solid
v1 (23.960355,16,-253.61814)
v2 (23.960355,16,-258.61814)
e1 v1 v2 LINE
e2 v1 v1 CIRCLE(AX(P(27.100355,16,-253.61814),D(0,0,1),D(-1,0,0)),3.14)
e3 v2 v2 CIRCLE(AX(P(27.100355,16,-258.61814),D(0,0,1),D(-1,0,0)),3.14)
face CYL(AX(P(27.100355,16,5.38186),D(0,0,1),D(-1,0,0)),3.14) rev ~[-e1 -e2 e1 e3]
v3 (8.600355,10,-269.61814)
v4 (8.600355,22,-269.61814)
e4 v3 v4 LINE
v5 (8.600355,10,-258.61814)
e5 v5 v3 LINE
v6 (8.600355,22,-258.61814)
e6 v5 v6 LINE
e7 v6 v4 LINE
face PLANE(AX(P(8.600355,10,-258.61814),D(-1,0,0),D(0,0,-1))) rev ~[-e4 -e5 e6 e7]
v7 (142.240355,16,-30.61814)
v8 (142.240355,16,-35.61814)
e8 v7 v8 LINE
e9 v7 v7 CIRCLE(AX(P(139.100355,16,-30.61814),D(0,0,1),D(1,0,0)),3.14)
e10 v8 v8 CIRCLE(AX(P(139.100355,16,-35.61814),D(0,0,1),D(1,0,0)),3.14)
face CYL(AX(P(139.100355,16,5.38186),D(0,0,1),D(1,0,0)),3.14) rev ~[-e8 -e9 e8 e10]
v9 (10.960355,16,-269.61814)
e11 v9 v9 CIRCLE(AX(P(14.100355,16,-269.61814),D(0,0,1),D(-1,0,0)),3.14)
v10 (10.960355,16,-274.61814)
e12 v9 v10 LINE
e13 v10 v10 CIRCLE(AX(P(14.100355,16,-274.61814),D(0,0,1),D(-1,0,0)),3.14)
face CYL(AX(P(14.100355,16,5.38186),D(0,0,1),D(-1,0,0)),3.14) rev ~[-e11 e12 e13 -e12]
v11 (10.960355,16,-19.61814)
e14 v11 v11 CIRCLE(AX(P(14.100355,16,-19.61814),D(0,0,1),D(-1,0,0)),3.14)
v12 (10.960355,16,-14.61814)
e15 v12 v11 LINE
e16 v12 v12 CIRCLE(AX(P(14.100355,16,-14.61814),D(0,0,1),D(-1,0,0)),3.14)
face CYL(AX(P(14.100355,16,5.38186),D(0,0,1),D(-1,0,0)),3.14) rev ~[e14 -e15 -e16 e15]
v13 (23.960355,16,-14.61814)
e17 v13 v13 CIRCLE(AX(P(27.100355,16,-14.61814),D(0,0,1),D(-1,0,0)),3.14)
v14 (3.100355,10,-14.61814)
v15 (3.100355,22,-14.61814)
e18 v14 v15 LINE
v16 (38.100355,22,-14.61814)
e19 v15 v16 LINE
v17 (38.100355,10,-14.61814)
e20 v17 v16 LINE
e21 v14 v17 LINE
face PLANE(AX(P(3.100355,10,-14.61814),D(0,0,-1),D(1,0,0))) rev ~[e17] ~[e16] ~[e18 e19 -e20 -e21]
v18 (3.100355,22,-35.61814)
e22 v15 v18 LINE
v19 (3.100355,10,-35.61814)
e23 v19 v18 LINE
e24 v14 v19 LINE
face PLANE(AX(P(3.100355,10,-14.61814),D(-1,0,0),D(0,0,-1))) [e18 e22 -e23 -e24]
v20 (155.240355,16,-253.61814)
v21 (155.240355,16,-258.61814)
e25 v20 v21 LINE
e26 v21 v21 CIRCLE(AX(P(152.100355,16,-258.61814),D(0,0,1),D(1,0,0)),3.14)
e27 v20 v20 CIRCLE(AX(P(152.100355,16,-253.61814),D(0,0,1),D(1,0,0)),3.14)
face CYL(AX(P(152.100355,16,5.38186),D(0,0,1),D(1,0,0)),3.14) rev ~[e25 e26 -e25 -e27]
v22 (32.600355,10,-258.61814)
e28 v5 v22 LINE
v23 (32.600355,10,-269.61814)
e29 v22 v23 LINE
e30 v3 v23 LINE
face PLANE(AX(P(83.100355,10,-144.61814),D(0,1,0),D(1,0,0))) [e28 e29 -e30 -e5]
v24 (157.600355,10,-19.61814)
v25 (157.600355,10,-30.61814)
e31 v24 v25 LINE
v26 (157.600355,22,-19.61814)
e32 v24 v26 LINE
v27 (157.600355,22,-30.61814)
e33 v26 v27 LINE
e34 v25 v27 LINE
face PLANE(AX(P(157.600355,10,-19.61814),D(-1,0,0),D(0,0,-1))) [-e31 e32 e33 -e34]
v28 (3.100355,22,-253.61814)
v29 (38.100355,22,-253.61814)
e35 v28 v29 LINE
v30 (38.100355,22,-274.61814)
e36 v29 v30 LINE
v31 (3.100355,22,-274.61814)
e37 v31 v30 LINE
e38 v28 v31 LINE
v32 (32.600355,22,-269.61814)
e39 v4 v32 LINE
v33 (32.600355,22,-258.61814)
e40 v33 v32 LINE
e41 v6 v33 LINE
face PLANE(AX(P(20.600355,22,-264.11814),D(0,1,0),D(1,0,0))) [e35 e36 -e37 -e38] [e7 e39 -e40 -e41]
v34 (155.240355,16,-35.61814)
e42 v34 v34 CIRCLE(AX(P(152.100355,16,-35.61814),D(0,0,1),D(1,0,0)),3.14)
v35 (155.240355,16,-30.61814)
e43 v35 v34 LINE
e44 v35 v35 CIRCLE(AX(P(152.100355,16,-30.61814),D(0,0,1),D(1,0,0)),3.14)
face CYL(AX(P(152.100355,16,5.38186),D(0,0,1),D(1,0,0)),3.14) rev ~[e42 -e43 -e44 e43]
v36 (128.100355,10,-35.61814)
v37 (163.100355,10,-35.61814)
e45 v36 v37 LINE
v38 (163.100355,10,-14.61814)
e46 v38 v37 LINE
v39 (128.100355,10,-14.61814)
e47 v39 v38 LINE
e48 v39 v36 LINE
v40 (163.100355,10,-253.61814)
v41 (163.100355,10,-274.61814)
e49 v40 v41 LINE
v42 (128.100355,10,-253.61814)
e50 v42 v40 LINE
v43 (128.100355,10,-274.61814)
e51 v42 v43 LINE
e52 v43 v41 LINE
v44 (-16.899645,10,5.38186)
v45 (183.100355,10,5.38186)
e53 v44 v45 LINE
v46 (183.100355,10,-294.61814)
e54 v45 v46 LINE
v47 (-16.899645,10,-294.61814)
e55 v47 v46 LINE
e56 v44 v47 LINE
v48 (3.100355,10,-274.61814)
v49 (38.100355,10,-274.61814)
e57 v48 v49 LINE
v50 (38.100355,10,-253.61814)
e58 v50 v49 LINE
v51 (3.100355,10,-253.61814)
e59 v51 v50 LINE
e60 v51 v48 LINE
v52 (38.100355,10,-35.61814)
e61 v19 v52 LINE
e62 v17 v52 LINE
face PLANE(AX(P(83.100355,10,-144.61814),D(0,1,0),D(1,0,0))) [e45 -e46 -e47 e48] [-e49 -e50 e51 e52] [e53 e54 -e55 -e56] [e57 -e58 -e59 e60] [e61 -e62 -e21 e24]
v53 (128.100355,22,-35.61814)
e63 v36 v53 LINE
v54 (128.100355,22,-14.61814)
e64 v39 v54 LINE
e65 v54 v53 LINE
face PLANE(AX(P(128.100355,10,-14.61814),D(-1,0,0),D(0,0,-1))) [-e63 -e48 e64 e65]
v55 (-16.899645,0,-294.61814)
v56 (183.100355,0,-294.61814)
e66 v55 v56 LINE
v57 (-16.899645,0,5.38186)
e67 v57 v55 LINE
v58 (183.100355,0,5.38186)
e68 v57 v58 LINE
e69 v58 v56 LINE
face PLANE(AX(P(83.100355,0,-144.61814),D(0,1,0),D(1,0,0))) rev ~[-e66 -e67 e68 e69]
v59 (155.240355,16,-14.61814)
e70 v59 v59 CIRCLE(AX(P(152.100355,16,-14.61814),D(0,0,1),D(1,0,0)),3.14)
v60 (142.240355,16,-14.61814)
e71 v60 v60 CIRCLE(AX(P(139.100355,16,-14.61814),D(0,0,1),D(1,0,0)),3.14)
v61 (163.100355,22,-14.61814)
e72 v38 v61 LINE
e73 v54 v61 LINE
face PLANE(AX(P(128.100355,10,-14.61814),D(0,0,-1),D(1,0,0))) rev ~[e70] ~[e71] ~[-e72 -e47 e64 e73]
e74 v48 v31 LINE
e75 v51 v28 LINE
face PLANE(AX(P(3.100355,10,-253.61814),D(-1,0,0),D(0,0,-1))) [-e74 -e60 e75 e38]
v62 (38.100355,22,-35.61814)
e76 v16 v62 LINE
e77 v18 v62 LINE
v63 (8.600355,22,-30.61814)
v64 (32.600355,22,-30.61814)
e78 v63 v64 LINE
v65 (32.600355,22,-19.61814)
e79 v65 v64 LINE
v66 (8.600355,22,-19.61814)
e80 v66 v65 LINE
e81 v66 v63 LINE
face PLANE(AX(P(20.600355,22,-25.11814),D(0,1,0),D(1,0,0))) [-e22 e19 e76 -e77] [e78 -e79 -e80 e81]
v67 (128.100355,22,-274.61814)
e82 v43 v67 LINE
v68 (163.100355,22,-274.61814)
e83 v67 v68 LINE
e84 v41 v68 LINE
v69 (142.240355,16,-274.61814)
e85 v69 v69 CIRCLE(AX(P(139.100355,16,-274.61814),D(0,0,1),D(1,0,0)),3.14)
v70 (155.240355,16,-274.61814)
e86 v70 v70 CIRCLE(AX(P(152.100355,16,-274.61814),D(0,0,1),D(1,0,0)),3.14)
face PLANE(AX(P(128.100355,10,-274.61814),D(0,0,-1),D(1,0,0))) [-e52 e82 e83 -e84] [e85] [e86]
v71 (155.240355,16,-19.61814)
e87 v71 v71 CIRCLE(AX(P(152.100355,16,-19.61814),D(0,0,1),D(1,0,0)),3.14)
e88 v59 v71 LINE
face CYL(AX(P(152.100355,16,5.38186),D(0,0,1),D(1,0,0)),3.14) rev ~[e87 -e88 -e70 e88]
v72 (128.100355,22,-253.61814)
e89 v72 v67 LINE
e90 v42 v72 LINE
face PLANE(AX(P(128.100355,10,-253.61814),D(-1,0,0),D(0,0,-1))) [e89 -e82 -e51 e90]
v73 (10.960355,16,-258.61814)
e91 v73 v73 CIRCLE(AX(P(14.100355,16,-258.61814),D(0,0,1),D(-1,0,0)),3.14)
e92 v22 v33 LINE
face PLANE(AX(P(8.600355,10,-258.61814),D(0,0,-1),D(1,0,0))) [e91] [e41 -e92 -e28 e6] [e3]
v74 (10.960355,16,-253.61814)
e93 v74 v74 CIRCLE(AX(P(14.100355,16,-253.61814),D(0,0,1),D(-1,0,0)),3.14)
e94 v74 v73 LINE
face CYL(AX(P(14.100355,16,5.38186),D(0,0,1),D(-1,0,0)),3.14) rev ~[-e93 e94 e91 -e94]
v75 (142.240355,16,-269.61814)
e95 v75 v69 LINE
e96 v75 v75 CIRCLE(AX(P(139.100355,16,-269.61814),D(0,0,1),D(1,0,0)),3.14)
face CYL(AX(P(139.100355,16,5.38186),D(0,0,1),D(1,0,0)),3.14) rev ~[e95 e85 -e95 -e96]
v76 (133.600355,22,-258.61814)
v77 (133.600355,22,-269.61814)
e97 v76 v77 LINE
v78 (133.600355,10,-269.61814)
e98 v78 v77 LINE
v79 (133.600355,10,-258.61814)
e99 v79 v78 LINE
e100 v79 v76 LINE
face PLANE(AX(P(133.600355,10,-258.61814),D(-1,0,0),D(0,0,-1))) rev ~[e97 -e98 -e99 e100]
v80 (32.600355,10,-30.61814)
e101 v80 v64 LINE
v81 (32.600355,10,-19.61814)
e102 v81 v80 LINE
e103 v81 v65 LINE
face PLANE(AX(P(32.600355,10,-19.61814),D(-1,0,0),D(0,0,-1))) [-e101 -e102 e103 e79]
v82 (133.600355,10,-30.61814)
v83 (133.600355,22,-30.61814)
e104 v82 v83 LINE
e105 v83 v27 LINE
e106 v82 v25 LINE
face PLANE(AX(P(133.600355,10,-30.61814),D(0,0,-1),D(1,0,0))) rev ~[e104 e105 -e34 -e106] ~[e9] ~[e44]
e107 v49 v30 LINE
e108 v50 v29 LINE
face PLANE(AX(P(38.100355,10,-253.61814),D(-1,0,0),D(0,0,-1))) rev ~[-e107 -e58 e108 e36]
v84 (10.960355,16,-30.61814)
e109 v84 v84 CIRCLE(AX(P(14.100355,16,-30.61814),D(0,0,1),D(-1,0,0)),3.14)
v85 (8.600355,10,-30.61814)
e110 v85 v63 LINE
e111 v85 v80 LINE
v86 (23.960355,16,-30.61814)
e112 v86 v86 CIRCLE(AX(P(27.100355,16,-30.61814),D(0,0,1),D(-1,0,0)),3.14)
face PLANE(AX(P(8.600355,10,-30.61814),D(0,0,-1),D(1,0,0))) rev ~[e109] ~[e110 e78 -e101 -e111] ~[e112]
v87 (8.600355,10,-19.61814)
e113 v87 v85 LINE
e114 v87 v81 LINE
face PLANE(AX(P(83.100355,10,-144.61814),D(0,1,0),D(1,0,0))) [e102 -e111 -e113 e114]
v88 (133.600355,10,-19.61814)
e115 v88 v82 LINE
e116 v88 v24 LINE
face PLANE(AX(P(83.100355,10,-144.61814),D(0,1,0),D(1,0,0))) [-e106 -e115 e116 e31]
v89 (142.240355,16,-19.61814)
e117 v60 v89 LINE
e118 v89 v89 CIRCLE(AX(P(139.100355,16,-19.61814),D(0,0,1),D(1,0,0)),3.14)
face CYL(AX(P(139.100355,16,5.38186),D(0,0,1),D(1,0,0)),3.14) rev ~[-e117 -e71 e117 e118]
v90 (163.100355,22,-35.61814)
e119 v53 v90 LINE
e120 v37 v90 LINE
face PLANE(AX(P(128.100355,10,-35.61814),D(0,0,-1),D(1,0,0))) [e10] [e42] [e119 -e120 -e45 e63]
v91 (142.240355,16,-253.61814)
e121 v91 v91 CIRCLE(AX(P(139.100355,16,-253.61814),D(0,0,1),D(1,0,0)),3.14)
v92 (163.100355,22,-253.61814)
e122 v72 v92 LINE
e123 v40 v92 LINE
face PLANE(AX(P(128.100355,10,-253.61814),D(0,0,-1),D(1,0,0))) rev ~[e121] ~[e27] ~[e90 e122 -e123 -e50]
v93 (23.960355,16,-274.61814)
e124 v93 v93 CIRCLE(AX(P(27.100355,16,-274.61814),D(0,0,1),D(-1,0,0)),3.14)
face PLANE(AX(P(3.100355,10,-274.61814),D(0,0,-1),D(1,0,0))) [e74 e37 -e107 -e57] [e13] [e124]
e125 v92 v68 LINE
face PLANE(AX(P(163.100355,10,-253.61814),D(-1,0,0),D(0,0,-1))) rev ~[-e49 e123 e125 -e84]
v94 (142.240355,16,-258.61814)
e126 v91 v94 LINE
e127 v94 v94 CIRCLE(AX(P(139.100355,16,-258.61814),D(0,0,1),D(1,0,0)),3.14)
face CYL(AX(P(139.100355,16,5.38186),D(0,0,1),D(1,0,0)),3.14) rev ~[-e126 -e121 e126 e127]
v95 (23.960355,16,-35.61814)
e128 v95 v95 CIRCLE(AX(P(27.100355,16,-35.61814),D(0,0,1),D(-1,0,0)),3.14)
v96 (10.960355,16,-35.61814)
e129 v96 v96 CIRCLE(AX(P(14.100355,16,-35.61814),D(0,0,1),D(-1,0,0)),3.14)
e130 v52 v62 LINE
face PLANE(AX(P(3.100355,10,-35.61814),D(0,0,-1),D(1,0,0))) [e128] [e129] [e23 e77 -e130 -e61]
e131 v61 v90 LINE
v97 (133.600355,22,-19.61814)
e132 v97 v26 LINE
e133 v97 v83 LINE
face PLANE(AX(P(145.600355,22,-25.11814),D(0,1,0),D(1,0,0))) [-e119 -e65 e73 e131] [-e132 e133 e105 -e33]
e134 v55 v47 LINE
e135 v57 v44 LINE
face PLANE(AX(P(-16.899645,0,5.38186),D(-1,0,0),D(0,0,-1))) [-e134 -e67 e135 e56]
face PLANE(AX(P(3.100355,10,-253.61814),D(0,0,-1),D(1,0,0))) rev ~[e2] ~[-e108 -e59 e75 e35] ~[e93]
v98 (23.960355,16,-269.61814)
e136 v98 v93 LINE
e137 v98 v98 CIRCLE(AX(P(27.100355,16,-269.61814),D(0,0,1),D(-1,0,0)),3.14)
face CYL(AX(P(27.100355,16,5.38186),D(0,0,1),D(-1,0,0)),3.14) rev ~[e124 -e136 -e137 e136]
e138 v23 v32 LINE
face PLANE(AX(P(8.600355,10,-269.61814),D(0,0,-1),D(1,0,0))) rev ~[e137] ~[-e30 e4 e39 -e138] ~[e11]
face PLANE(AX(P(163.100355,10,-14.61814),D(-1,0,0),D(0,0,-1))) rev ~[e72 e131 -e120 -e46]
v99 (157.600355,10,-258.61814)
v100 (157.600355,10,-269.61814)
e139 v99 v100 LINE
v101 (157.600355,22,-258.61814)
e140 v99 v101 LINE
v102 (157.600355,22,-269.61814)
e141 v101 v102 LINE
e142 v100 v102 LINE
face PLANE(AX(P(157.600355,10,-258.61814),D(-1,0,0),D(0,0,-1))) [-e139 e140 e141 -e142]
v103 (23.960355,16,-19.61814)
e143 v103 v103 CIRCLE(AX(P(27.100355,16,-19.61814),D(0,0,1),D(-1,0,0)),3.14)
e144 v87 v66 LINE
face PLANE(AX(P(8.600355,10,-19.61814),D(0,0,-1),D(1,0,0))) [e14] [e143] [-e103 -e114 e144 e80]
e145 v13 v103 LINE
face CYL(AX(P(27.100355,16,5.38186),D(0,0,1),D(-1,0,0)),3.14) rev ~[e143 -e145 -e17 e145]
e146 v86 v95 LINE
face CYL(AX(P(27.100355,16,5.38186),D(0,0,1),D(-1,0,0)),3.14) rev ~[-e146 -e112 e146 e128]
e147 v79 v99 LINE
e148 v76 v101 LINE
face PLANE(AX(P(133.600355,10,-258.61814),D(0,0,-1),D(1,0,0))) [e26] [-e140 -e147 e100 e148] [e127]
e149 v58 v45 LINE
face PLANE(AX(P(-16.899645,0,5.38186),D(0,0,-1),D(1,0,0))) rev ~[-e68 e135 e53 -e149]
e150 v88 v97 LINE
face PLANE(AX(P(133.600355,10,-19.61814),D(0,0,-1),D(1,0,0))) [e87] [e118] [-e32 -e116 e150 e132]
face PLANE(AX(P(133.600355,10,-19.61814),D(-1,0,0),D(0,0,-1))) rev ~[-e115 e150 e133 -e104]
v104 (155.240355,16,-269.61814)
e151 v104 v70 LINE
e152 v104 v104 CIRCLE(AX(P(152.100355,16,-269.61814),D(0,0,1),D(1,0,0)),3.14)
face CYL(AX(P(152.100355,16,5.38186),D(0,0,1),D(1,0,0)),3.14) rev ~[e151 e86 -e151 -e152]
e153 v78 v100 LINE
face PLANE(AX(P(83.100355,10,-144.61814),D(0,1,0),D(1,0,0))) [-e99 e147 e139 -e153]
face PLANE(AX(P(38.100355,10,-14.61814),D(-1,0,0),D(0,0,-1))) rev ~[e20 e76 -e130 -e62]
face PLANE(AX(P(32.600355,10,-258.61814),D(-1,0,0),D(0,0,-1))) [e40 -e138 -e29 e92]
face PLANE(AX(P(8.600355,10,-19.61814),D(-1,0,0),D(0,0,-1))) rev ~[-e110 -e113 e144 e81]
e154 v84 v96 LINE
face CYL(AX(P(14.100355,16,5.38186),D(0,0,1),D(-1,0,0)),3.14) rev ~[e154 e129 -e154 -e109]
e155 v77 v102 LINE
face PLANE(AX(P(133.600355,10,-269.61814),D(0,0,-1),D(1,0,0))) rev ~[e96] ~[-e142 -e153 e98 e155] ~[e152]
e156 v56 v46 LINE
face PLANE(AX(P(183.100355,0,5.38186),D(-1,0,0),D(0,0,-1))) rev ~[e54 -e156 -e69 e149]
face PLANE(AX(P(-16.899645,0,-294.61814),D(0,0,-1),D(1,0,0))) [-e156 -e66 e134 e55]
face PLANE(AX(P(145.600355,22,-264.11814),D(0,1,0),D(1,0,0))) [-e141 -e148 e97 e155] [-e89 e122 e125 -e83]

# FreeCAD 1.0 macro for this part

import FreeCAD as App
import Part
import Sketcher

V = App.Vector
Q = App.Units.Quantity


def add_polygon(sketch, points):
    """Adds a closed chain of lines whose ends are joined by coincident constraints."""
    first, n = sketch.GeometryCount, len(points)
    for a, b in zip(points, points[1:] + points[:1]):
        sketch.addGeometry(Part.LineSegment(App.Vector(*a, 0), App.Vector(*b, 0)), False)
    for i in range(n):
        sketch.addConstraint(Sketcher.Constraint("Coincident", first + i, 2, first + (i + 1) % n, 1))

doc = App.newDocument("Part")
body = doc.addObject("PartDesign::Body", "Body")

sketch1 = body.newObject("Sketcher::SketchObject", "Sketch")
sketch1.AttachmentSupport = (doc.getObject("XZ_Plane"), [""])
sketch1.MapMode = "FlatFace"
add_polygon(sketch1, [(-16.899645, -294.61814), (-16.899645, 5.38186), (183.100355, 5.38186), (183.100355, -294.61814)])
sketch1.addConstraint([
    Sketcher.Constraint("Vertical", 0),
    Sketcher.Constraint("Horizontal", 1),
    Sketcher.Constraint("Vertical", 2),
    Sketcher.Constraint("Horizontal", 3),
    Sketcher.Constraint("DistanceX", 1, 1, 1, 2, Q("200 mm")),
    Sketcher.Constraint("DistanceY", 0, 1, 0, 2, Q("300 mm")),
    Sketcher.Constraint("DistanceY", -1, 1, 0, 2, Q("5.38186 mm")),
    Sketcher.Constraint("DistanceX", 0, 2, -1, 1, Q("16.899645 mm")),
])
pad1 = body.newObject("PartDesign::Pad", "Pad")
pad1.Profile = sketch1
pad1.Length = 10
pad1.Reversed = True

sketch2 = body.newObject("Sketcher::SketchObject", "Sketch001")
sketch2.AttachmentSupport = (doc.getObject("XZ_Plane"), [""])
sketch2.MapMode = "FlatFace"
sketch2.AttachmentOffset = App.Placement(V(0, 0, -10), App.Rotation())
add_polygon(sketch2, [(3.100355, -35.61814), (3.100355, -14.61814), (38.100355, -14.61814), (38.100355, -35.61814)])
add_polygon(sketch2, [(32.600355, -19.61814), (8.600355, -19.61814), (8.600355, -30.61814), (32.600355, -30.61814)])
add_polygon(sketch2, [(128.100355, -35.61814), (128.100355, -14.61814), (163.100355, -14.61814), (163.100355, -35.61814)])
add_polygon(sketch2, [(157.600355, -19.61814), (133.600355, -19.61814), (133.600355, -30.61814), (157.600355, -30.61814)])
add_polygon(sketch2, [(128.100355, -274.61814), (128.100355, -253.61814), (163.100355, -253.61814), (163.100355, -274.61814)])
add_polygon(sketch2, [(157.600355, -258.61814), (133.600355, -258.61814), (133.600355, -269.61814), (157.600355, -269.61814)])
add_polygon(sketch2, [(3.100355, -274.61814), (3.100355, -253.61814), (38.100355, -253.61814), (38.100355, -274.61814)])
add_polygon(sketch2, [(32.600355, -258.61814), (8.600355, -258.61814), (8.600355, -269.61814), (32.600355, -269.61814)])
sketch2.addConstraint([
    Sketcher.Constraint("Vertical", 0),
    Sketcher.Constraint("Horizontal", 1),
    Sketcher.Constraint("Vertical", 2),
    Sketcher.Constraint("Horizontal", 3),
    Sketcher.Constraint("Horizontal", 4),
    Sketcher.Constraint("Vertical", 5),
    Sketcher.Constraint("Horizontal", 6),
    Sketcher.Constraint("Vertical", 7),
    Sketcher.Constraint("Vertical", 8),
    Sketcher.Constraint("Horizontal", 9),
    Sketcher.Constraint("Vertical", 10),
    Sketcher.Constraint("Horizontal", 11),
    Sketcher.Constraint("Horizontal", 12),
    Sketcher.Constraint("Vertical", 13),
    Sketcher.Constraint("Horizontal", 14),
    Sketcher.Constraint("Vertical", 15),
    Sketcher.Constraint("Vertical", 16),
    Sketcher.Constraint("Horizontal", 17),
    Sketcher.Constraint("Vertical", 18),
    Sketcher.Constraint("Horizontal", 19),
    Sketcher.Constraint("Horizontal", 20),
    Sketcher.Constraint("Vertical", 21),
    Sketcher.Constraint("Horizontal", 22),
    Sketcher.Constraint("Vertical", 23),
    Sketcher.Constraint("Vertical", 24),
    Sketcher.Constraint("Horizontal", 25),
    Sketcher.Constraint("Vertical", 26),
    Sketcher.Constraint("Horizontal", 27),
    Sketcher.Constraint("Horizontal", 28),
    Sketcher.Constraint("Vertical", 29),
    Sketcher.Constraint("Horizontal", 30),
    Sketcher.Constraint("Vertical", 31),
    Sketcher.Constraint("Horizontal", 1, 2, 8, 2),
    Sketcher.Constraint("Horizontal", 3, 2, 10, 2),
    Sketcher.Constraint("Horizontal", 7, 2, 12, 2),
    Sketcher.Constraint("Horizontal", 6, 2, 13, 2),
    Sketcher.Constraint("Horizontal", 17, 2, 24, 2),
    Sketcher.Constraint("Horizontal", 19, 2, 26, 2),
    Sketcher.Constraint("Horizontal", 23, 2, 28, 2),
    Sketcher.Constraint("Horizontal", 22, 2, 29, 2),
    Sketcher.Constraint("Vertical", 11, 2, 16, 2),
    Sketcher.Constraint("Vertical", 10, 2, 17, 2),
    Sketcher.Constraint("Vertical", 13, 2, 20, 2),
    Sketcher.Constraint("Vertical", 15, 2, 22, 2),
    Sketcher.Constraint("Vertical", 3, 2, 24, 2),
    Sketcher.Constraint("Vertical", 2, 2, 25, 2),
    Sketcher.Constraint("Vertical", 5, 2, 28, 2),
    Sketcher.Constraint("Vertical", 7, 2, 30, 2),
    Sketcher.Constraint("Equal", 3, 9),
    Sketcher.Constraint("Equal", 6, 12),
    Sketcher.Constraint("Equal", 10, 16),
    Sketcher.Constraint("Equal", 15, 21),
    Sketcher.Constraint("DistanceX", 1, 1, 1, 2, Q("35 mm")),
    Sketcher.Constraint("DistanceX", 4, 2, 4, 1, Q("24 mm")),
    Sketcher.Constraint("DistanceY", 0, 1, 0, 2, Q("21 mm")),
    Sketcher.Constraint("DistanceY", 5, 2, 5, 1, Q("11 mm")),
    Sketcher.Constraint("DistanceY", 4, 2, 0, 2, Q("5 mm")),
    Sketcher.Constraint("DistanceX", 1, 2, 8, 2, Q("90 mm")),
    Sketcher.Constraint("DistanceY", 16, 2, 11, 2, Q("218 mm")),
    Sketcher.Constraint("DistanceY", 20, 2, 16, 2, Q("5 mm")),
    Sketcher.Constraint("DistanceX", 0, 2, 4, 2, Q("5.5 mm")),
    Sketcher.Constraint("DistanceX", 8, 2, 12, 2, Q("5.5 mm")),
    Sketcher.Constraint("DistanceY", 0, 2, -1, 1, Q("14.61814 mm")),
    Sketcher.Constraint("DistanceX", -1, 1, 0, 2, Q("3.100355 mm")),
])
pad2 = body.newObject("PartDesign::Pad", "Pad001")
pad2.Profile = sketch2
pad2.Length = 12
pad2.Reversed = True

sketch3 = body.newObject("Sketcher::SketchObject", "Sketch002")
sketch3.AttachmentSupport = (doc.getObject("XY_Plane"), [""])
sketch3.MapMode = "FlatFace"
sketch3.AttachmentOffset = App.Placement(V(0, 0, 5.38186), App.Rotation())
sketch3.addGeometry([
    Part.Circle(V(14.100355, 16, 0), V(0, 0, 1), 3.14),
    Part.Circle(V(27.100355, 16, 0), V(0, 0, 1), 3.14),
    Part.Circle(V(152.100355, 16, 0), V(0, 0, 1), 3.14),
    Part.Circle(V(139.100355, 16, 0), V(0, 0, 1), 3.14),
], False)
sketch3.addConstraint([
    Sketcher.Constraint("Equal", 0, 1),
    Sketcher.Constraint("Equal", 1, 2),
    Sketcher.Constraint("Equal", 2, 3),
    Sketcher.Constraint("Horizontal", 0, 3, 1, 3),
    Sketcher.Constraint("Horizontal", 1, 3, 2, 3),
    Sketcher.Constraint("Horizontal", 2, 3, 3, 3),
    Sketcher.Constraint("Diameter", 0, Q("6.28 mm")),
    Sketcher.Constraint("DistanceY", -1, 1, 0, 3, Q("16 mm")),
    Sketcher.Constraint("DistanceX", 0, 3, 1, 3, Q("13 mm")),
    Sketcher.Constraint("DistanceX", 1, 3, 2, 3, Q("125 mm")),
    Sketcher.Constraint("DistanceX", 3, 3, 2, 3, Q("13 mm")),
    Sketcher.Constraint("DistanceX", -1, 1, 0, 3, Q("14.100355 mm")),
])
pocket1 = body.newObject("PartDesign::Pocket", "Pocket")
pocket1.Profile = sketch3
pocket1.Length = 1200

doc.recompute()
